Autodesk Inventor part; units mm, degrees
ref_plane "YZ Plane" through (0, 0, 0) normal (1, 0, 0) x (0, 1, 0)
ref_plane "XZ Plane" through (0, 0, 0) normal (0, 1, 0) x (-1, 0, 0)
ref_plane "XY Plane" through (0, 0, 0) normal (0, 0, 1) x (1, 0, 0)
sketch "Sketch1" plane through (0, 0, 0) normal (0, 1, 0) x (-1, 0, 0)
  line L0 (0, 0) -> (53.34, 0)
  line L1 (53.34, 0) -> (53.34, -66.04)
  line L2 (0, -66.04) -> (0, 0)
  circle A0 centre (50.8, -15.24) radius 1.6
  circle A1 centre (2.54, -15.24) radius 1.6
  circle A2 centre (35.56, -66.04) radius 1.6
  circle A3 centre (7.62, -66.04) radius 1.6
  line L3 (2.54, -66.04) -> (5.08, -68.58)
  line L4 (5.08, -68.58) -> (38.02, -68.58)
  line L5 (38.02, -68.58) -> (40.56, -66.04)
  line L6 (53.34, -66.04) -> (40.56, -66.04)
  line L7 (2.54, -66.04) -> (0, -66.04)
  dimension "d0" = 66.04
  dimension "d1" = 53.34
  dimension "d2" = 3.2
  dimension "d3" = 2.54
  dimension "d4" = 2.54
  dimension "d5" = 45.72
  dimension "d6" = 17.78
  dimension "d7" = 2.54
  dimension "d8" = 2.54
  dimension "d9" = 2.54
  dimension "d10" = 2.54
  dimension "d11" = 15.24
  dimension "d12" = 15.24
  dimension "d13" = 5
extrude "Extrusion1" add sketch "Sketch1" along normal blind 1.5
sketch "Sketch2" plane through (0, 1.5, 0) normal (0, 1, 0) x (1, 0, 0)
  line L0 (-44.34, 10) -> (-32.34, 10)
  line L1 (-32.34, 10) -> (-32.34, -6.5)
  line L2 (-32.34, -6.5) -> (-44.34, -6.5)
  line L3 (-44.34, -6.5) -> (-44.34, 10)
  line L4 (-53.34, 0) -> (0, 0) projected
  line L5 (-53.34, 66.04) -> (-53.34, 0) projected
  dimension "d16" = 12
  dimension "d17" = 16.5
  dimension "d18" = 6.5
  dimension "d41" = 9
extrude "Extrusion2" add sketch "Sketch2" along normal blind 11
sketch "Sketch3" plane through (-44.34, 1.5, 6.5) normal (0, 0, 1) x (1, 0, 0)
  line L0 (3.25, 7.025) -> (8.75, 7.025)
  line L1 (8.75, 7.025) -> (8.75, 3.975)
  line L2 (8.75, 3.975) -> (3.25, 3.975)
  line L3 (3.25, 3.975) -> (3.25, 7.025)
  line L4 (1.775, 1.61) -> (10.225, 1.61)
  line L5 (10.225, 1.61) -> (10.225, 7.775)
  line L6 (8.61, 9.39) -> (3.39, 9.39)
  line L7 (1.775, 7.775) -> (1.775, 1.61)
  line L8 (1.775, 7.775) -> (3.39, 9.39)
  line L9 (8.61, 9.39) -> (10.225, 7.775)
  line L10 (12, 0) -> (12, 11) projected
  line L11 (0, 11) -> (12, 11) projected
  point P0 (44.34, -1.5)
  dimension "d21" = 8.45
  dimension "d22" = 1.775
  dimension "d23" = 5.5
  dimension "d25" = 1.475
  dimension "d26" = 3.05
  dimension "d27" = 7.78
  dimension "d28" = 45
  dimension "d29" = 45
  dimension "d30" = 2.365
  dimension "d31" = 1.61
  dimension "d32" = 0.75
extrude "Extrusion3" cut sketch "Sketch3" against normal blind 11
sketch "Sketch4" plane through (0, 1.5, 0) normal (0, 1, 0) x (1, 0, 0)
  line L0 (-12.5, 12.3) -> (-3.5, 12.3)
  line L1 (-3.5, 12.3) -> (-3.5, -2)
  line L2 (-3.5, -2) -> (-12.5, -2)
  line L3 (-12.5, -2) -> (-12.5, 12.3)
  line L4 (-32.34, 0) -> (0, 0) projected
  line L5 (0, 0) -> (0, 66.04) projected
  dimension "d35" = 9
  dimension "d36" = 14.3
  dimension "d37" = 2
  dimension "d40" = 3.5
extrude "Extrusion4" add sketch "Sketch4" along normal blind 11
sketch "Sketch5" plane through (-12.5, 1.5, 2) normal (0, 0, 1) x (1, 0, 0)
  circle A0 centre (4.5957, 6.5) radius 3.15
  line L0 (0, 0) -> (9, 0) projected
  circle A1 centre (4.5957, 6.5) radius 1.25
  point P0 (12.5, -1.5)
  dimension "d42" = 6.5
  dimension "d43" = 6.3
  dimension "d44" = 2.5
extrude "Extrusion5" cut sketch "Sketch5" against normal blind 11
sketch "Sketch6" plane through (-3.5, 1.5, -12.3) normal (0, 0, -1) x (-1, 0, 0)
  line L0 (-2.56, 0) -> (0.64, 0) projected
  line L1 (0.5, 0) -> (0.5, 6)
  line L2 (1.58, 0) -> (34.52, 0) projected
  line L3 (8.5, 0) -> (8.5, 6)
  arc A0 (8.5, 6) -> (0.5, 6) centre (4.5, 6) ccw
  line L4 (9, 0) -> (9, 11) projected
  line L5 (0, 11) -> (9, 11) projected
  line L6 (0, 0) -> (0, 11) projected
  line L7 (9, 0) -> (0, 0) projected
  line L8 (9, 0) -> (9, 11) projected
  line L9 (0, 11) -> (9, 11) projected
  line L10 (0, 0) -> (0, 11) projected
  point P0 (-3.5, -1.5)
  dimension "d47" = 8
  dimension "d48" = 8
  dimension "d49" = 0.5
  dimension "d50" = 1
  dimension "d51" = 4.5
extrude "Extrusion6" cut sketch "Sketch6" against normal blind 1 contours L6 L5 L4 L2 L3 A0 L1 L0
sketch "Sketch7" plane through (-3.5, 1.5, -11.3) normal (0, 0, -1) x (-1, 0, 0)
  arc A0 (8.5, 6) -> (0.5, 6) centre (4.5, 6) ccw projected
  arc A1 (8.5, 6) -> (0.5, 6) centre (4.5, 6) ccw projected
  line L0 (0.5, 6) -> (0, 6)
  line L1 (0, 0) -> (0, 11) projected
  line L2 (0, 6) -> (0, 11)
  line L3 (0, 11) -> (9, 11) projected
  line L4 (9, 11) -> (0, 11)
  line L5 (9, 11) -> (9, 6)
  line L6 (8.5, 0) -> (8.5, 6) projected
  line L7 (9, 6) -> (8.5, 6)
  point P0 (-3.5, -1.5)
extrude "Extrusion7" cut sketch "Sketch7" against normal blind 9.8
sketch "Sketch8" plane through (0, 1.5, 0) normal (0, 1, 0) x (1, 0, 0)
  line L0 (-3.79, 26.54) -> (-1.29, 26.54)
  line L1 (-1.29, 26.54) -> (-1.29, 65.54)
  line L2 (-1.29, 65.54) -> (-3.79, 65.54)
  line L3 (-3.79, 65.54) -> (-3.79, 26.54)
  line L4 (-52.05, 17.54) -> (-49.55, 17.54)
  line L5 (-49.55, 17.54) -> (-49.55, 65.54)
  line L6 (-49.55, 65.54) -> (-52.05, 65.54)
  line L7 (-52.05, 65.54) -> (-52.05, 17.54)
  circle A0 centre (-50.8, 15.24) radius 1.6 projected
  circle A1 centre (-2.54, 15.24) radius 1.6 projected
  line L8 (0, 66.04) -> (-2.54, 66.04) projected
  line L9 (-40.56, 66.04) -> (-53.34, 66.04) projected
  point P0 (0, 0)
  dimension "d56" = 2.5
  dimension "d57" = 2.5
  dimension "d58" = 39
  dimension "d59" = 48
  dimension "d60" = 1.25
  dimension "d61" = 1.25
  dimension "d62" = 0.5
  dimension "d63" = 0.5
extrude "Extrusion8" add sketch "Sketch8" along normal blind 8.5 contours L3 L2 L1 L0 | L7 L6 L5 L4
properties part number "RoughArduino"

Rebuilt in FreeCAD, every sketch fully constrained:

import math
import FreeCAD as App
import Part
import Sketcher

V = App.Vector


def add_polygon(sketch, points):
    """Adds a closed chain of lines whose ends are joined by coincident constraints."""
    first, n = sketch.GeometryCount, len(points)
    for a, b in zip(points, points[1:] + points[:1]):
        sketch.addGeometry(Part.LineSegment(App.Vector(*a, 0), App.Vector(*b, 0)), False)
    for i in range(n):
        sketch.addConstraint(Sketcher.Constraint("Coincident", first + i, 2, first + (i + 1) % n, 1))

doc = App.newDocument("Part")
params = doc.addObject("Spreadsheet::Sheet", "Params")
for row, (alias, value) in enumerate([
    ("sketch1_diameter", "3.2 mm"),
    ("sketch1_width", "53.34 mm"),
    ("sketch1_width2", "2.54 mm"),
    ("sketch1_height", "66.04 mm"),
    ("pad1_length", "1.5 mm"),
    ("sketch2_width", "12 mm"),
    ("sketch2_height", "16.5 mm"),
    ("pad2_length", "11 mm"),
    ("sketch3_width", "5.5 mm"),
    ("sketch3_width2", "8.45 mm"),
    ("sketch3_height", "3.05 mm"),
    ("pocket1_length", "11 mm"),
    ("sketch4_width", "9 mm"),
    ("sketch4_height", "14.3 mm"),
    ("pad3_length", "11 mm"),
    ("sketch5_diameter", "6.3 mm"),
    ("sketch5_diameter2", "2.5 mm"),
    ("pocket2_length", "11 mm"),
    ("sketch6_radius", "4 mm"),
    ("sketch6_width", "0.5 mm"),
    ("sketch6_height", "11 mm"),
    ("sketch6_height2", "6 mm"),
    ("pocket3_length", "1 mm"),
    ("sketch7_radius", "4 mm"),
    ("sketch7_width", "9 mm"),
    ("sketch7_height", "5 mm"),
    ("pocket4_length", "9.8 mm"),
    ("sketch8_height", "39 mm"),
    ("sketch8_height2", "48 mm"),
    ("sketch8_width", "2.5 mm"),
    ("pad4_length", "8.5 mm"),
], start=1):
    params.set(f"A{row}", alias)
    params.set(f"B{row}", "=" + value)
    params.setAlias(f"B{row}", alias)

body = doc.addObject("PartDesign::Body", "Body")

sketch1 = body.newObject("Sketcher::SketchObject", "Sketch")
sketch1.AttachmentSupport = (doc.getObject("XZ_Plane"), [""])
sketch1.MapMode = "FlatFace"
add_polygon(sketch1, [(-53.3, 0), (0, 0), (0, -66), (-2.5, -66), (-5.1, -68.6), (-38, -68.6), (-40.6, -66), (-53.3, -66)])
sketch1.addGeometry(Part.Circle(V(-7.6, -66, 0), V(0, 0, 1), 1.6), False)
sketch1.addGeometry(Part.Circle(V(-35.6, -66, 0), V(0, 0, 1), 1.6), False)
sketch1.addGeometry(Part.Circle(V(-2.5, -15.2, 0), V(0, 0, 1), 1.6), False)
sketch1.addGeometry(Part.Circle(V(-50.8, -15.2, 0), V(0, 0, 1), 1.6), False)
sketch1.addConstraint([
    Sketcher.Constraint("Horizontal", 0),
    Sketcher.Constraint("Vertical", 1),
    Sketcher.Constraint("Horizontal", 2),
    Sketcher.Constraint("Horizontal", 4),
    Sketcher.Constraint("Horizontal", 6),
    Sketcher.Constraint("Vertical", 7),
    Sketcher.Constraint("Coincident", 0, 2, -1, 1),
    Sketcher.Constraint("Equal", 8, 9),
    Sketcher.Constraint("Equal", 9, 10),
    Sketcher.Constraint("Equal", 10, 11),
    Sketcher.Constraint("Perpendicular", 3, 5),
    Sketcher.Constraint("Horizontal", 8, 3, 9, 3),
    Sketcher.Constraint("Horizontal", 10, 3, 11, 3),
    Sketcher.Constraint("Horizontal", 9, 3, 1, 2),
    Sketcher.Constraint("Horizontal", 2, 2, 5, 2),
    Sketcher.Constraint("Vertical", 10, 3, 2, 2),
    Sketcher.Constraint("Equal", 3, 5),
    Sketcher.Constraint("Diameter", 8, 3.2),
    Sketcher.Constraint("DistanceX", 5, 2, 9, 3, 5.0),
    Sketcher.Constraint("DistanceX", 0, 1, 0, 2, 53.34),
    Sketcher.Constraint("DistanceX", 2, 2, 2, 1, 2.54),
    Sketcher.Constraint("DistanceY", 1, 2, 1, 1, 66.04),
    Sketcher.Constraint("DistanceY", 10, 3, -1, 1, 15.24),
    Sketcher.Constraint("DistanceX", 11, 3, 9, 3, 15.24),
    Sketcher.Constraint("DistanceX", 8, 3, 3, 2, 2.54),
    Sketcher.Constraint("DistanceY", 3, 2, 8, 3, 2.54),
    Sketcher.Constraint("DistanceX", 6, 2, 9, 3, 17.78),
])
sketch1.setExpression("Constraints[25]", "Params.sketch1_diameter")
sketch1.setExpression("Constraints[27]", "Params.sketch1_width")
sketch1.setExpression("Constraints[28]", "Params.sketch1_width2")
sketch1.setExpression("Constraints[29]", "Params.sketch1_height")
pad1 = body.newObject("PartDesign::Pad", "Pad")
pad1.Profile = sketch1
pad1.setExpression("Length", "Params.pad1_length")
pad1.Reversed = True

sketch2 = body.newObject("Sketcher::SketchObject", "Sketch001")
sketch2.AttachmentSupport = (doc.getObject("XZ_Plane"), [""])
sketch2.MapMode = "FlatFace"
sketch2.AttachmentOffset = App.Placement(V(0, 0, -1.5), App.Rotation())
add_polygon(sketch2, [(-32, -10), (-44, -10), (-44, 6), (-32, 6)])
sketch2.addConstraint([
    Sketcher.Constraint("Horizontal", 0),
    Sketcher.Constraint("Vertical", 1),
    Sketcher.Constraint("Horizontal", 2),
    Sketcher.Constraint("Vertical", 3),
    Sketcher.Constraint("DistanceX", 0, 2, 0, 1, 12.0),
    Sketcher.Constraint("DistanceY", 1, 1, 1, 2, 16.5),
    Sketcher.Constraint("DistanceY", -1, 1, 1, 2, 6.5),
    Sketcher.Constraint("DistanceX", 0, 2, -1, 1, 44.34),
])
sketch2.setExpression("Constraints[8]", "Params.sketch2_width")
sketch2.setExpression("Constraints[9]", "Params.sketch2_height")
pad2 = body.newObject("PartDesign::Pad", "Pad001")
pad2.Profile = sketch2
pad2.setExpression("Length", "Params.pad2_length")
pad2.Reversed = True

sketch3 = body.newObject("Sketcher::SketchObject", "Sketch002")
sketch3.AttachmentSupport = (doc.getObject("XY_Plane"), [""])
sketch3.MapMode = "FlatFace"
sketch3.AttachmentOffset = App.Placement(V(0, 0, 6.5), App.Rotation())
add_polygon(sketch3, [(-42.6, 9.3), (-42.6, 3.1), (-34.1, 3.1), (-34.1, 9.3), (-35.7, 10.9), (-41, 10.9)])
add_polygon(sketch3, [(-41.1, 5.5), (-41.1, 8.5), (-35.6, 8.5), (-35.6, 5.5)])
sketch3.addConstraint([
    Sketcher.Constraint("Vertical", 0),
    Sketcher.Constraint("Horizontal", 1),
    Sketcher.Constraint("Vertical", 2),
    Sketcher.Constraint("Horizontal", 4),
    Sketcher.Constraint("Vertical", 6),
    Sketcher.Constraint("Horizontal", 7),
    Sketcher.Constraint("Vertical", 8),
    Sketcher.Constraint("Horizontal", 9),
    Sketcher.Constraint("Perpendicular", 3, 5),
    Sketcher.Constraint("Horizontal", 2, 2, 5, 2),
    Sketcher.Constraint("Equal", 3, 5),
    Sketcher.Constraint("DistanceX", 7, 1, 7, 2, 5.5),
    Sketcher.Constraint("DistanceX", 1, 1, 1, 2, 8.45),
    Sketcher.Constraint("DistanceY", 6, 1, 6, 2, 3.05),
    Sketcher.Constraint("DistanceY", 1, 2, 3, 2, 7.78),
    Sketcher.Constraint("DistanceY", 6, 2, 5, 2, 0.75),
    Sketcher.Constraint("DistanceX", 5, 2, 6, 2, 1.475),
    Sketcher.Constraint("DistanceY", 6, 2, 4, 2, 2.365),
    Sketcher.Constraint("DistanceY", -1, 1, 0, 2, 3.11),
    Sketcher.Constraint("DistanceX", 3, 2, -1, 1, 35.73),
])
sketch3.setExpression("Constraints[21]", "Params.sketch3_width")
sketch3.setExpression("Constraints[22]", "Params.sketch3_width2")
sketch3.setExpression("Constraints[23]", "Params.sketch3_height")
pocket1 = body.newObject("PartDesign::Pocket", "Pocket")
pocket1.Profile = sketch3
pocket1.setExpression("Length", "Params.pocket1_length")

sketch4 = body.newObject("Sketcher::SketchObject", "Sketch003")
sketch4.AttachmentSupport = (doc.getObject("XZ_Plane"), [""])
sketch4.MapMode = "FlatFace"
sketch4.AttachmentOffset = App.Placement(V(0, 0, -1.5), App.Rotation())
add_polygon(sketch4, [(-4, -12), (-12, -12), (-12, 2), (-4, 2)])
sketch4.addConstraint([
    Sketcher.Constraint("Horizontal", 0),
    Sketcher.Constraint("Vertical", 1),
    Sketcher.Constraint("Horizontal", 2),
    Sketcher.Constraint("Vertical", 3),
    Sketcher.Constraint("DistanceX", 0, 2, 0, 1, 9.0),
    Sketcher.Constraint("DistanceY", 1, 1, 1, 2, 14.3),
    Sketcher.Constraint("DistanceY", -1, 1, 1, 2, 2.0),
    Sketcher.Constraint("DistanceX", 2, 2, -1, 1, 3.5),
])
sketch4.setExpression("Constraints[8]", "Params.sketch4_width")
sketch4.setExpression("Constraints[9]", "Params.sketch4_height")
pad3 = body.newObject("PartDesign::Pad", "Pad002")
pad3.Profile = sketch4
pad3.setExpression("Length", "Params.pad3_length")
pad3.Reversed = True

sketch5 = body.newObject("Sketcher::SketchObject", "Sketch004")
sketch5.AttachmentSupport = (doc.getObject("XY_Plane"), [""])
sketch5.MapMode = "FlatFace"
sketch5.AttachmentOffset = App.Placement(V(0, 0, 2), App.Rotation())
sketch5.addGeometry([
    Part.Circle(V(-7.9, 8, 0), V(0, 0, 1), 3.1),
    Part.Circle(V(-7.9, 8, 0), V(0, 0, 1), 1.2),
], False)
sketch5.addConstraint([
    Sketcher.Constraint("Coincident", 1, 3, 0, 3),
    Sketcher.Constraint("Diameter", 0, 6.3),
    Sketcher.Constraint("Diameter", 1, 2.5),
    Sketcher.Constraint("DistanceY", -1, 1, 0, 3, 8.0),
    Sketcher.Constraint("DistanceX", 0, 3, -1, 1, 7.9043),
])
sketch5.setExpression("Constraints[1]", "Params.sketch5_diameter")
sketch5.setExpression("Constraints[2]", "Params.sketch5_diameter2")
pocket2 = body.newObject("PartDesign::Pocket", "Pocket001")
pocket2.Profile = sketch5
pocket2.setExpression("Length", "Params.pocket2_length")

sketch6 = body.newObject("Sketcher::SketchObject", "Sketch005")
sketch6.AttachmentSupport = (doc.getObject("XY_Plane"), [""])
sketch6.MapMode = "FlatFace"
sketch6.AttachmentOffset = App.Placement(V(0, 0, -12.3), App.Rotation())
sketch6.addGeometry([
    Part.LineSegment(V(-3.5, 12.5, 0), V(-3.5, 1.5, 0)),
    Part.LineSegment(V(-3.5, 1.5, 0), V(-4, 1.5, 0)),
    Part.LineSegment(V(-4, 1.5, 0), V(-4, 7.5, 0)),
    Part.ArcOfCircle(Part.Circle(V(-8, 7.5, 0), V(0, 0, 1), 4), math.radians(0), math.radians(180)),
    Part.LineSegment(V(-12, 7.5, 0), V(-12, 1.5, 0)),
    Part.LineSegment(V(-12, 1.5, 0), V(-12.5, 1.5, 0)),
    Part.LineSegment(V(-12.5, 1.5, 0), V(-12.5, 12.5, 0)),
    Part.LineSegment(V(-12.5, 12.5, 0), V(-3.5, 12.5, 0)),
], False)
sketch6.addConstraint([
    Sketcher.Constraint("Coincident", 0, 2, 1, 1),
    Sketcher.Constraint("Coincident", 1, 2, 2, 1),
    Sketcher.Constraint("Tangent", 2, 2, 3, 1),
    Sketcher.Constraint("Tangent", 3, 2, 4, 1),
    Sketcher.Constraint("Coincident", 4, 2, 5, 1),
    Sketcher.Constraint("Coincident", 5, 2, 6, 1),
    Sketcher.Constraint("Coincident", 6, 2, 7, 1),
    Sketcher.Constraint("Coincident", 7, 2, 0, 1),
    Sketcher.Constraint("Vertical", 0),
    Sketcher.Constraint("Horizontal", 1),
    Sketcher.Constraint("Vertical", 2),
    Sketcher.Constraint("Vertical", 4),
    Sketcher.Constraint("Horizontal", 5),
    Sketcher.Constraint("Vertical", 6),
    Sketcher.Constraint("Horizontal", 7),
    Sketcher.Constraint("Horizontal", 1, 2, 4, 2),
    Sketcher.Constraint("Equal", 1, 5),
    Sketcher.Constraint("Radius", 3, 4.0),
    Sketcher.Constraint("DistanceX", 1, 2, 1, 1, 0.5),
    Sketcher.Constraint("DistanceX", 3, 3, -1, 1, 8.0),
    Sketcher.Constraint("DistanceY", 0, 2, 0, 1, 11.0),
    Sketcher.Constraint("DistanceY", 2, 1, 2, 2, 6.0),
    Sketcher.Constraint("DistanceY", -1, 1, 3, 3, 7.5),
])
sketch6.setExpression("Constraints[17]", "Params.sketch6_radius")
sketch6.setExpression("Constraints[18]", "Params.sketch6_width")
sketch6.setExpression("Constraints[20]", "Params.sketch6_height")
sketch6.setExpression("Constraints[21]", "Params.sketch6_height2")
pocket3 = body.newObject("PartDesign::Pocket", "Pocket002")
pocket3.Profile = sketch6
pocket3.setExpression("Length", "Params.pocket3_length")
pocket3.Reversed = True

sketch7 = body.newObject("Sketcher::SketchObject", "Sketch006")
sketch7.AttachmentSupport = (doc.getObject("XY_Plane"), [""])
sketch7.MapMode = "FlatFace"
sketch7.AttachmentOffset = App.Placement(V(0, 0, -11.3), App.Rotation())
sketch7.addGeometry([
    Part.ArcOfCircle(Part.Circle(V(-8, 7.5, 0), V(0, 0, 1), 4), math.radians(0), math.radians(180)),
    Part.LineSegment(V(-12, 7.5, 0), V(-12.5, 7.5, 0)),
    Part.LineSegment(V(-12.5, 7.5, 0), V(-12.5, 12.5, 0)),
    Part.LineSegment(V(-12.5, 12.5, 0), V(-3.5, 12.5, 0)),
    Part.LineSegment(V(-3.5, 12.5, 0), V(-3.5, 7.5, 0)),
    Part.LineSegment(V(-3.5, 7.5, 0), V(-4, 7.5, 0)),
], False)
sketch7.addConstraint([
    Sketcher.Constraint("Coincident", 0, 2, 1, 1),
    Sketcher.Constraint("Coincident", 1, 2, 2, 1),
    Sketcher.Constraint("Coincident", 2, 2, 3, 1),
    Sketcher.Constraint("Coincident", 3, 2, 4, 1),
    Sketcher.Constraint("Coincident", 4, 2, 5, 1),
    Sketcher.Constraint("Coincident", 5, 2, 0, 1),
    Sketcher.Constraint("Horizontal", 1),
    Sketcher.Constraint("Vertical", 2),
    Sketcher.Constraint("Horizontal", 3),
    Sketcher.Constraint("Vertical", 4),
    Sketcher.Constraint("Horizontal", 5),
    Sketcher.Constraint("Horizontal", 1, 2, 4, 2),
    Sketcher.Constraint("Equal", 1, 5),
    Sketcher.Constraint("Radius", 0, 4.0),
    Sketcher.Constraint("DistanceX", 3, 1, 3, 2, 9.0),
    Sketcher.Constraint("DistanceY", 2, 1, 2, 2, 5.0),
    Sketcher.Constraint("DistanceX", 0, 3, -1, 1, 8.0),
    Sketcher.Constraint("DistanceY", 0, 3, 2, 2, 5.0),
    Sketcher.Constraint("DistanceY", -1, 1, 0, 3, 7.5),
])
sketch7.setExpression("Constraints[13]", "Params.sketch7_radius")
sketch7.setExpression("Constraints[14]", "Params.sketch7_width")
sketch7.setExpression("Constraints[15]", "Params.sketch7_height")
pocket4 = body.newObject("PartDesign::Pocket", "Pocket003")
pocket4.Profile = sketch7
pocket4.setExpression("Length", "Params.pocket4_length")
pocket4.Reversed = True

sketch8 = body.newObject("Sketcher::SketchObject", "Sketch007")
sketch8.AttachmentSupport = (doc.getObject("XZ_Plane"), [""])
sketch8.MapMode = "FlatFace"
sketch8.AttachmentOffset = App.Placement(V(0, 0, -1.5), App.Rotation())
add_polygon(sketch8, [(-3.8, -65.5), (-3.8, -26.5), (-1.3, -26.5), (-1.3, -65.5)])
add_polygon(sketch8, [(-52, -65.5), (-52, -17.5), (-49.5, -17.5), (-49.5, -65.5)])
sketch8.addConstraint([
    Sketcher.Constraint("Vertical", 0),
    Sketcher.Constraint("Horizontal", 1),
    Sketcher.Constraint("Vertical", 2),
    Sketcher.Constraint("Horizontal", 3),
    Sketcher.Constraint("Vertical", 4),
    Sketcher.Constraint("Horizontal", 5),
    Sketcher.Constraint("Vertical", 6),
    Sketcher.Constraint("Horizontal", 7),
    Sketcher.Constraint("Horizontal", 3, 2, 6, 2),
    Sketcher.Constraint("Equal", 3, 5),
    Sketcher.Constraint("DistanceY", 0, 1, 0, 2, 39.0),
    Sketcher.Constraint("DistanceY", 4, 1, 4, 2, 48.0),
    Sketcher.Constraint("DistanceX", 1, 1, 1, 2, 2.5),
    Sketcher.Constraint("DistanceX", 0, 2, -1, 1, 3.79),
    Sketcher.Constraint("DistanceY", 0, 2, -1, 1, 26.54),
    Sketcher.Constraint("DistanceX", 4, 2, -1, 1, 52.05),
])
sketch8.setExpression("Constraints[18]", "Params.sketch8_height")
sketch8.setExpression("Constraints[19]", "Params.sketch8_height2")
sketch8.setExpression("Constraints[20]", "Params.sketch8_width")
pad4 = body.newObject("PartDesign::Pad", "Pad003")
pad4.Profile = sketch8
pad4.setExpression("Length", "Params.pad4_length")
pad4.Reversed = True

doc.recompute()
